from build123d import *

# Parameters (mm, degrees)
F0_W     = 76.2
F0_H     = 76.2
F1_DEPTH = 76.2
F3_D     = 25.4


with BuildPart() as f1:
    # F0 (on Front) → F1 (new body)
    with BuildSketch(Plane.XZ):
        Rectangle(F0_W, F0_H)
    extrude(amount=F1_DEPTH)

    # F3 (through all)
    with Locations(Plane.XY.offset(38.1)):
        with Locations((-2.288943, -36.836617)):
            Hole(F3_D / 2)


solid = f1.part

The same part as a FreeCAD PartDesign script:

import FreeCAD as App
import Part
import Sketcher

V = App.Vector
Q = App.Units.Quantity

doc = App.newDocument("Part")
body = doc.addObject("PartDesign::Body", "Body")

# Sketch on XZ plane
sketch1 = body.newObject("Sketcher::SketchObject", "Sketch")
sketch1.AttachmentSupport = (doc.getObject("XZ_Plane"), [""])
sketch1.MapMode = "FlatFace"
sketch1.addGeometry([
    Part.LineSegment(V(-38.1, 38.1, 0), V(-38.1, -38.1, 0)),
    Part.LineSegment(V(-38.1, -38.1, 0), V(38.1, -38.1, 0)),
    Part.LineSegment(V(38.1, -38.1, 0), V(38.1, 38.1, 0)),
    Part.LineSegment(V(38.1, 38.1, 0), V(-38.1, 38.1, 0)),
], False)
sketch1.addConstraint([
    Sketcher.Constraint("Coincident", 0, 2, 1, 1),
    Sketcher.Constraint("Coincident", 1, 2, 2, 1),
    Sketcher.Constraint("Coincident", 2, 2, 3, 1),
    Sketcher.Constraint("Coincident", 3, 2, 0, 1),
    Sketcher.Constraint("Vertical", 0),
    Sketcher.Constraint("Horizontal", 1),
    Sketcher.Constraint("Vertical", 2),
    Sketcher.Constraint("Horizontal", 3),
    Sketcher.Constraint("Symmetric", 0, 2, 2, 2, -1, 1),
    Sketcher.Constraint("Equal", 3, 0),
    Sketcher.Constraint("DistanceX", 1, 1, 1, 2, Q("3 in")),
])
pad1 = body.newObject("PartDesign::Pad", "Pad")
pad1.Profile = sketch1
pad1.Length = Q("3 in")

# Sketch on XY plane
sketch2 = body.newObject("Sketcher::SketchObject", "Sketch001")
sketch2.AttachmentSupport = (doc.getObject("XY_Plane"), [""])
sketch2.MapMode = "FlatFace"
sketch2.AttachmentOffset = App.Placement(V(0, 0, 1.5 * 25.4), App.Rotation())
sketch2.addGeometry(Part.Circle(V(-2.288943, -36.836617, 0), V(0, 0, 1), 12.7), False)
sketch2.addConstraint([
    Sketcher.Constraint("Diameter", 0, Q("1 in")),
    Sketcher.Constraint("DistanceX", 0, 3, -1, 1, 2.288943),
    Sketcher.Constraint("DistanceY", 0, 3, -1, 1, 36.836617),
])
doc.recompute()
hole = body.newObject("PartDesign::Hole", "Hole")
hole.Profile = sketch2
hole.ThreadType = "None"
hole.Diameter = Q("1 in")
hole.DepthType = "ThroughAll"

doc.recompute()
